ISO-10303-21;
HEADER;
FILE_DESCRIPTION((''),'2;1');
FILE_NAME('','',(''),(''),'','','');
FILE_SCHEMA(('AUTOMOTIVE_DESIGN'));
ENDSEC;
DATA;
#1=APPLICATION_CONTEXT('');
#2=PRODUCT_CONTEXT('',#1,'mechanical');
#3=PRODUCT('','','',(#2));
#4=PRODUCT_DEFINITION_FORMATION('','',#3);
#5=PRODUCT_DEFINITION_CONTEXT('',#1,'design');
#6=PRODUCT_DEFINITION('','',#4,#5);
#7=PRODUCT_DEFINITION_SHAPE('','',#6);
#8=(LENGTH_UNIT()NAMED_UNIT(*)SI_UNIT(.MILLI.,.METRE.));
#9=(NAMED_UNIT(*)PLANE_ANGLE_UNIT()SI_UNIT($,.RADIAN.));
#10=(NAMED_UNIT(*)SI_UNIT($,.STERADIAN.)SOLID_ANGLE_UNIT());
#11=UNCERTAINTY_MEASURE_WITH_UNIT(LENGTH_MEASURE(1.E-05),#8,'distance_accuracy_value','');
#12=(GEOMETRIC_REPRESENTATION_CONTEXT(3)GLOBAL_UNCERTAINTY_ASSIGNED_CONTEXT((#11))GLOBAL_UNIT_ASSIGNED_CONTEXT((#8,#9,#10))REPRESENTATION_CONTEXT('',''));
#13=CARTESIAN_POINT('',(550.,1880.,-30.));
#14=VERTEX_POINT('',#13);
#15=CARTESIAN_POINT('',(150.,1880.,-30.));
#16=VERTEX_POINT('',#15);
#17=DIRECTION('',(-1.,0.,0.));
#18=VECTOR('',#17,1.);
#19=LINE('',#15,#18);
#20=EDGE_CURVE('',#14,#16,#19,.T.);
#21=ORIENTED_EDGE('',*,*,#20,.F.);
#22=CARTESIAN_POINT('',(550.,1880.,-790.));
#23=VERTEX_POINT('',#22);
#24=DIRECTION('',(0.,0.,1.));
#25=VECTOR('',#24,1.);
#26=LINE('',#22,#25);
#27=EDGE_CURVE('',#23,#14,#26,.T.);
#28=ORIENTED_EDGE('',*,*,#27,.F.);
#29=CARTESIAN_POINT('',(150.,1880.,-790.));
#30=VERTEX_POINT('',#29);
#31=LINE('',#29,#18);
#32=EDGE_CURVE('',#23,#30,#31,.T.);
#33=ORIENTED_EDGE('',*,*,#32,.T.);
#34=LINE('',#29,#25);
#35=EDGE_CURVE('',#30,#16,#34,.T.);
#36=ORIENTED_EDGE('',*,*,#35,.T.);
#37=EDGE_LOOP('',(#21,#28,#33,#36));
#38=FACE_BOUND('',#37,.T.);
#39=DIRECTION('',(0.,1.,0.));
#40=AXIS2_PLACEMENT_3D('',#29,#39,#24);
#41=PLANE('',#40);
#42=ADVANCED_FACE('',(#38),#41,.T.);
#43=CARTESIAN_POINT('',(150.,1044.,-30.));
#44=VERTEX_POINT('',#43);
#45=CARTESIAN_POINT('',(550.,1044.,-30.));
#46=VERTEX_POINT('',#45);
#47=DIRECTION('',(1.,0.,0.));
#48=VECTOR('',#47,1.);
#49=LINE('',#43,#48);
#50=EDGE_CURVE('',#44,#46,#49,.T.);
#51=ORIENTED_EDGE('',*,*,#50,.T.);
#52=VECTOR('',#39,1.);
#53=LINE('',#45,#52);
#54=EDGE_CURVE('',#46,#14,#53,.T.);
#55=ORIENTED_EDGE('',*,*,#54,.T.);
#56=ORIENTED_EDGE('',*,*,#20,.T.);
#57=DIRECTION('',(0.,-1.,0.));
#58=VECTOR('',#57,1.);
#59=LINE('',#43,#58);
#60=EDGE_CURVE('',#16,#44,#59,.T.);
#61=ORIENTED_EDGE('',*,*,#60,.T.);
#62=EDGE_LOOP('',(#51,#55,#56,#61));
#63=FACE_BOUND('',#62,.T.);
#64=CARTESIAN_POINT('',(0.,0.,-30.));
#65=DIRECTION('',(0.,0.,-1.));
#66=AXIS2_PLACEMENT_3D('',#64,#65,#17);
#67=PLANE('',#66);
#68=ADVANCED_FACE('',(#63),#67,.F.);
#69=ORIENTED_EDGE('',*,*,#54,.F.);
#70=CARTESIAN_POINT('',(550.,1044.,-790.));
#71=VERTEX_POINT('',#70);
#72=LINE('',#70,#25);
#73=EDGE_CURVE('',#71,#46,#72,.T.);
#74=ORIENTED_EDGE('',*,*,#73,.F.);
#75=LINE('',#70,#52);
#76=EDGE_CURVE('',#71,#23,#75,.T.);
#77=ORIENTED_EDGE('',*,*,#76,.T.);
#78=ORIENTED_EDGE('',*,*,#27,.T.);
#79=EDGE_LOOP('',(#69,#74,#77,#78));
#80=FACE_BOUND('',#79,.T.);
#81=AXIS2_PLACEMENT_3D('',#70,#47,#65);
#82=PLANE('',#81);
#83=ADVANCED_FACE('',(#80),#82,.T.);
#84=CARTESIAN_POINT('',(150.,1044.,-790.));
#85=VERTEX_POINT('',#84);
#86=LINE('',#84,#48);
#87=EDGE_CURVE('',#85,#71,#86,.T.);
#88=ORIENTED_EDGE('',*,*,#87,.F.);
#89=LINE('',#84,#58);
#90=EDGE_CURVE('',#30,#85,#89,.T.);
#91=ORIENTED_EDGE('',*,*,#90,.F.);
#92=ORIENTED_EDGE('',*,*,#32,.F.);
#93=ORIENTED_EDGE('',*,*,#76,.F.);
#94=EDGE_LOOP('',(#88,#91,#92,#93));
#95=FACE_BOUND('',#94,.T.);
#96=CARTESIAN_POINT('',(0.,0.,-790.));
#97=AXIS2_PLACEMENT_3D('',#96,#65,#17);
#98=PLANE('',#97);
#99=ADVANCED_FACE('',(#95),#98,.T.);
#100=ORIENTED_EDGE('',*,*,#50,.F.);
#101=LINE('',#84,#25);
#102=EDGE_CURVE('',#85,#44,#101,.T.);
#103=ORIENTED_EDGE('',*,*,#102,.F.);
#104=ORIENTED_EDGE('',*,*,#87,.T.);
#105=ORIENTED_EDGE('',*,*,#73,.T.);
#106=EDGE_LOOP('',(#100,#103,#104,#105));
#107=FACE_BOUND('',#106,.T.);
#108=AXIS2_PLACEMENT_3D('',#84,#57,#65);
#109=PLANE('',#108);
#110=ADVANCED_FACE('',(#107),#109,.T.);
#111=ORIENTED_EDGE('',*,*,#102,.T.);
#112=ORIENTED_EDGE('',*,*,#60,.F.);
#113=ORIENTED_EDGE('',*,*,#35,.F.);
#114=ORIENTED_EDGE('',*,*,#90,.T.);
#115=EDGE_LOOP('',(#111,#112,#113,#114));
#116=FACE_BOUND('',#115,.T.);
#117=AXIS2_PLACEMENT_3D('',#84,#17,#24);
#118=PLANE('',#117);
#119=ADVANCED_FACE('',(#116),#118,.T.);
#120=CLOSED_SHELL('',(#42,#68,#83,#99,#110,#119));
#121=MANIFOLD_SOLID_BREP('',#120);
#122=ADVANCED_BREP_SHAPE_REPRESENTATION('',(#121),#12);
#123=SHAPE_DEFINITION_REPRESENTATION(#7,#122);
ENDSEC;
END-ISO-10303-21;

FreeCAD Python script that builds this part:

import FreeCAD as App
import Part
import Sketcher

V = App.Vector

doc = App.newDocument("Part")
params = doc.addObject("Spreadsheet::Sheet", "Params")
for row, (alias, value) in enumerate([
    ("sketch1_width", "400 mm"),
    ("sketch1_height", "836 mm"),
    ("pad1_length", "760 mm"),
], start=1):
    params.set(f"A{row}", alias)
    params.set(f"B{row}", "=" + value)
    params.setAlias(f"B{row}", alias)

body = doc.addObject("PartDesign::Body", "Body")

sketch1 = body.newObject("Sketcher::SketchObject", "Sketch")
sketch1.AttachmentSupport = (doc.getObject("XY_Plane"), [""])
sketch1.MapMode = "FlatFace"
sketch1.AttachmentOffset = App.Placement(V(0, 0, -30), App.Rotation())
sketch1.addGeometry(Part.LineSegment(V(150, 1880, 0), V(150, 1044, 0)), False)
sketch1.addGeometry(Part.LineSegment(V(150, 1044, 0), V(550, 1044, 0)), False)
sketch1.addGeometry(Part.LineSegment(V(550, 1044, 0), V(550, 1880, 0)), False)
sketch1.addGeometry(Part.LineSegment(V(550, 1880, 0), V(150, 1880, 0)), False)
sketch1.addConstraint(Sketcher.Constraint("Coincident", 0, 2, 1, 1))
sketch1.addConstraint(Sketcher.Constraint("Coincident", 1, 2, 2, 1))
sketch1.addConstraint(Sketcher.Constraint("Coincident", 2, 2, 3, 1))
sketch1.addConstraint(Sketcher.Constraint("Coincident", 3, 2, 0, 1))
sketch1.addConstraint(Sketcher.Constraint("Vertical", 0))
sketch1.addConstraint(Sketcher.Constraint("Horizontal", 1))
sketch1.addConstraint(Sketcher.Constraint("Vertical", 2))
sketch1.addConstraint(Sketcher.Constraint("Horizontal", 3))
sketch1.addConstraint(Sketcher.Constraint("DistanceX", 1, 1, 1, 2, 400.0))
sketch1.addConstraint(Sketcher.Constraint("DistanceY", 0, 2, 0, 1, 836.0))
sketch1.addConstraint(Sketcher.Constraint("DistanceX", -1, 1, 0, 2, 150.0))
sketch1.addConstraint(Sketcher.Constraint("DistanceY", -1, 1, 0, 2, 1044.0))
sketch1.setExpression("Constraints[8]", "Params.sketch1_width")
sketch1.setExpression("Constraints[9]", "Params.sketch1_height")
pad1 = body.newObject("PartDesign::Pad", "Pad")
pad1.Profile = sketch1
pad1.setExpression("Length", "Params.pad1_length")
pad1.Reversed = True

doc.recompute()
